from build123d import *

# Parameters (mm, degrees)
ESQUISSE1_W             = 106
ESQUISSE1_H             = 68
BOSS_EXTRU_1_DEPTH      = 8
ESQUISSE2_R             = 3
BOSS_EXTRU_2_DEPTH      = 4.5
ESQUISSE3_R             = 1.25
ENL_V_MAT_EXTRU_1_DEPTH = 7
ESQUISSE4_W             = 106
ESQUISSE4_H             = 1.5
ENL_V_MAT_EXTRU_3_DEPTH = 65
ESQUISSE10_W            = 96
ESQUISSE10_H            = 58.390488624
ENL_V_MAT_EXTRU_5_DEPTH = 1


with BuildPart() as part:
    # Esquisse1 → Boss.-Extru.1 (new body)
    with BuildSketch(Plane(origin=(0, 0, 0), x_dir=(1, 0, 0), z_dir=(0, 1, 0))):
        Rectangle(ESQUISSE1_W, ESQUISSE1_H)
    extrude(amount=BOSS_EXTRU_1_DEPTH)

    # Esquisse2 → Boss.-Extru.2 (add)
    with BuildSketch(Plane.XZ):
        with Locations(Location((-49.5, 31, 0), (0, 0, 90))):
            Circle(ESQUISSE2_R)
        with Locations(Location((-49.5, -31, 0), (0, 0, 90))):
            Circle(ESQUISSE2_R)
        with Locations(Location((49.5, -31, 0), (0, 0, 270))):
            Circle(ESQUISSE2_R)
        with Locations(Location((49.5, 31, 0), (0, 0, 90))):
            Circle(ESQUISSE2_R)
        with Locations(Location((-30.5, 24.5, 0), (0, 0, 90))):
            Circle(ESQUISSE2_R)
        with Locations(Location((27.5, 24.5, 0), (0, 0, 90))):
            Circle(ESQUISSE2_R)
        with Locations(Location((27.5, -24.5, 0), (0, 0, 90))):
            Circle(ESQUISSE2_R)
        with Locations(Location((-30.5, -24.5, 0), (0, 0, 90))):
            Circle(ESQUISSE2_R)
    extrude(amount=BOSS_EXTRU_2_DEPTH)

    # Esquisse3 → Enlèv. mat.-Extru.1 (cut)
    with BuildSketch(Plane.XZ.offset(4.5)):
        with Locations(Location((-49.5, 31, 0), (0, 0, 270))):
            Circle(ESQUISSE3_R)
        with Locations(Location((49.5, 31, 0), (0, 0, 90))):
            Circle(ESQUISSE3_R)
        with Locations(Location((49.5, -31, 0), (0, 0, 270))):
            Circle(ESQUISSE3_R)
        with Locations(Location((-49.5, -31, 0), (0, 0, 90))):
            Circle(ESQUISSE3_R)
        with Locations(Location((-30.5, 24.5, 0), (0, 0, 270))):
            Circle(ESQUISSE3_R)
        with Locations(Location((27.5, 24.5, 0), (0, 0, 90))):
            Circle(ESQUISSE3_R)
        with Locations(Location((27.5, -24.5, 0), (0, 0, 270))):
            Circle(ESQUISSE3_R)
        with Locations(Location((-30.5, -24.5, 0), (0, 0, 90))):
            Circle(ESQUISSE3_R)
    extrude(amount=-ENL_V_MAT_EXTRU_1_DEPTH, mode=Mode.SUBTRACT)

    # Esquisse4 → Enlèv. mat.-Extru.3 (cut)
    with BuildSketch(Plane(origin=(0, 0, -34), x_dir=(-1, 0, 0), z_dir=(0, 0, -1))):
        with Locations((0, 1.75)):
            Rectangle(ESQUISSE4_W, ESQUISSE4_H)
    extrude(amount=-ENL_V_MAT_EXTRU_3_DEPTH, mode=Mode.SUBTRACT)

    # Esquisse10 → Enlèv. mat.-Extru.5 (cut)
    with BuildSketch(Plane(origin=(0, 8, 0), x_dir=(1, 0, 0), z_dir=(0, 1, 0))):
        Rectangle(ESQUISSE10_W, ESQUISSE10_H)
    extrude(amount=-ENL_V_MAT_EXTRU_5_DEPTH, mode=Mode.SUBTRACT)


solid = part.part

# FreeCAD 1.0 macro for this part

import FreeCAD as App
import Part
import Sketcher

doc = App.newDocument("Part")
body = doc.addObject("PartDesign::Body", "Body")

# Sketch on XZ plane
sketch1 = doc.addObject("Sketcher::SketchObject", "Sketch")
body.addObject(sketch1)
sketch1.AttachmentSupport = (doc.XZ_Plane, [""])
sketch1.MapMode = "FlatFace"
sketch1.addGeometry([
    Part.LineSegment(App.Vector(-53, -34, 0), App.Vector(-53, 34, 0)),
    Part.LineSegment(App.Vector(-53, 34, 0), App.Vector(53, 34, 0)),
    Part.LineSegment(App.Vector(53, 34, 0), App.Vector(53, -34, 0)),
    Part.LineSegment(App.Vector(53, -34, 0), App.Vector(-53, -34, 0)),
], False)
sketch1.addConstraint([
    Sketcher.Constraint("Coincident", 0, 2, 1, 1),
    Sketcher.Constraint("Coincident", 1, 2, 2, 1),
    Sketcher.Constraint("Coincident", 2, 2, 3, 1),
    Sketcher.Constraint("Coincident", 3, 2, 0, 1),
    Sketcher.Constraint("Vertical", 0),
    Sketcher.Constraint("Horizontal", 1),
    Sketcher.Constraint("Vertical", 2),
    Sketcher.Constraint("Horizontal", 3),
    Sketcher.Constraint("Symmetric", 0, 2, 2, 2, -1, 1),
    Sketcher.Constraint("DistanceX", 1, 1, 1, 2, 106.0),
    Sketcher.Constraint("DistanceY", 0, 1, 0, 2, 68.0),
])
pad1 = doc.addObject("PartDesign::Pad", "Pad")
body.addObject(pad1)
pad1.Profile = sketch1
pad1.Length = 8
pad1.Reversed = True

# Sketch on XZ plane
sketch2 = doc.addObject("Sketcher::SketchObject", "Sketch001")
body.addObject(sketch2)
sketch2.AttachmentSupport = (doc.XZ_Plane, [""])
sketch2.MapMode = "FlatFace"
sketch2.addGeometry([
    Part.Circle(App.Vector(-49.5, 31, 0), App.Vector(0, 0, 1), 3),  # 0
    Part.Circle(App.Vector(-49.5, -31, 0), App.Vector(0, 0, 1), 3),  # 1
    Part.Circle(App.Vector(49.5, -31, 0), App.Vector(0, 0, 1), 3),  # 2
    Part.Circle(App.Vector(49.5, 31, 0), App.Vector(0, 0, 1), 3),  # 3
    Part.Circle(App.Vector(-30.5, 24.5, 0), App.Vector(0, 0, 1), 3),  # 4
    Part.Circle(App.Vector(27.5, 24.5, 0), App.Vector(0, 0, 1), 3),  # 5
    Part.Circle(App.Vector(27.5, -24.5, 0), App.Vector(0, 0, 1), 3),  # 6
    Part.Circle(App.Vector(-30.5, -24.5, 0), App.Vector(0, 0, 1), 3),  # 7
], False)
sketch2.addConstraint([
    Sketcher.Constraint("Equal", 0, 1),
    Sketcher.Constraint("Equal", 1, 2),
    Sketcher.Constraint("Equal", 2, 3),
    Sketcher.Constraint("Equal", 3, 4),
    Sketcher.Constraint("Equal", 4, 5),
    Sketcher.Constraint("Equal", 5, 6),
    Sketcher.Constraint("Equal", 6, 7),
    Sketcher.Constraint("Symmetric", 0, 3, 2, 3, -1, 1),
    Sketcher.Constraint("Symmetric", 1, 3, 3, 3, -1, 1),
    Sketcher.Constraint("Symmetric", 1, 3, 2, 3, -2),
    Sketcher.Constraint("Symmetric", 5, 3, 6, 3, -1),
    Sketcher.Constraint("Symmetric", 4, 3, 7, 3, -1),
    Sketcher.Constraint("Horizontal", 4, 3, 5, 3),
    Sketcher.Constraint("Diameter", 0, 6.0),
    Sketcher.Constraint("DistanceY", -1, 1, 0, 3, 31.0),
    Sketcher.Constraint("DistanceX", 1, 3, 2, 3, 99.0),
    Sketcher.Constraint("DistanceX", 0, 3, 4, 3, 19.0),
    Sketcher.Constraint("DistanceX", 5, 3, 3, 3, 22.0),
    Sketcher.Constraint("DistanceY", 6, 3, 5, 3, 49.0),
])
pad2 = doc.addObject("PartDesign::Pad", "Pad001")
body.addObject(pad2)
pad2.Profile = sketch2
pad2.Length = 4.5

# Sketch on XZ plane
sketch3 = doc.addObject("Sketcher::SketchObject", "Sketch002")
body.addObject(sketch3)
sketch3.AttachmentSupport = (doc.XZ_Plane, [""])
sketch3.MapMode = "FlatFace"
sketch3.AttachmentOffset = App.Placement(App.Vector(0, 0, 4.5), App.Rotation())
sketch3.addGeometry([
    Part.Circle(App.Vector(-49.5, 31, 0), App.Vector(0, 0, 1), 1.25),  # 0
    Part.Circle(App.Vector(49.5, 31, 0), App.Vector(0, 0, 1), 1.25),  # 1
    Part.Circle(App.Vector(49.5, -31, 0), App.Vector(0, 0, 1), 1.25),  # 2
    Part.Circle(App.Vector(-49.5, -31, 0), App.Vector(0, 0, 1), 1.25),  # 3
    Part.Circle(App.Vector(-30.5, 24.5, 0), App.Vector(0, 0, 1), 1.25),  # 4
    Part.Circle(App.Vector(27.5, 24.5, 0), App.Vector(0, 0, 1), 1.25),  # 5
    Part.Circle(App.Vector(27.5, -24.5, 0), App.Vector(0, 0, 1), 1.25),  # 6
    Part.Circle(App.Vector(-30.5, -24.5, 0), App.Vector(0, 0, 1), 1.25),  # 7
], False)
sketch3.addConstraint([
    Sketcher.Constraint("Equal", 0, 1),
    Sketcher.Constraint("Equal", 1, 2),
    Sketcher.Constraint("Equal", 2, 3),
    Sketcher.Constraint("Equal", 3, 4),
    Sketcher.Constraint("Equal", 4, 5),
    Sketcher.Constraint("Equal", 5, 6),
    Sketcher.Constraint("Equal", 6, 7),
    Sketcher.Constraint("Symmetric", 0, 3, 2, 3, -1, 1),
    Sketcher.Constraint("Symmetric", 1, 3, 3, 3, -1, 1),
    Sketcher.Constraint("Symmetric", 0, 3, 1, 3, -2),
    Sketcher.Constraint("Symmetric", 5, 3, 6, 3, -1),
    Sketcher.Constraint("Symmetric", 4, 3, 7, 3, -1),
    Sketcher.Constraint("Horizontal", 4, 3, 5, 3),
    Sketcher.Constraint("Diameter", 0, 2.5),
    Sketcher.Constraint("DistanceY", -1, 1, 0, 3, 31.0),
    Sketcher.Constraint("DistanceX", 0, 3, 1, 3, 99.0),
    Sketcher.Constraint("DistanceX", 0, 3, 4, 3, 19.0),
    Sketcher.Constraint("DistanceX", 5, 3, 1, 3, 22.0),
    Sketcher.Constraint("DistanceY", 6, 3, 5, 3, 49.0),
])
pocket1 = doc.addObject("PartDesign::Pocket", "Pocket")
body.addObject(pocket1)
pocket1.Profile = sketch3
pocket1.Length = 7

# Sketch on XY plane
sketch4 = doc.addObject("Sketcher::SketchObject", "Sketch003")
body.addObject(sketch4)
sketch4.AttachmentSupport = (doc.XY_Plane, [""])
sketch4.MapMode = "FlatFace"
sketch4.AttachmentOffset = App.Placement(App.Vector(0, 0, -34), App.Rotation())
sketch4.addGeometry([
    Part.LineSegment(App.Vector(53, 2.5, 0), App.Vector(53, 1, 0)),
    Part.LineSegment(App.Vector(53, 1, 0), App.Vector(-53, 1, 0)),
    Part.LineSegment(App.Vector(-53, 1, 0), App.Vector(-53, 2.5, 0)),
    Part.LineSegment(App.Vector(-53, 2.5, 0), App.Vector(53, 2.5, 0)),
], False)
sketch4.addConstraint([
    Sketcher.Constraint("Coincident", 0, 2, 1, 1),
    Sketcher.Constraint("Coincident", 1, 2, 2, 1),
    Sketcher.Constraint("Coincident", 2, 2, 3, 1),
    Sketcher.Constraint("Coincident", 3, 2, 0, 1),
    Sketcher.Constraint("Vertical", 0),
    Sketcher.Constraint("Horizontal", 1),
    Sketcher.Constraint("Vertical", 2),
    Sketcher.Constraint("Horizontal", 3),
    Sketcher.Constraint("DistanceX", 1, 2, 1, 1, 106.0),
    Sketcher.Constraint("DistanceY", 0, 2, 0, 1, 1.5),
    Sketcher.Constraint("DistanceX", -1, 1, 0, 2, 53.0),
    Sketcher.Constraint("DistanceY", -1, 1, 0, 2, 1.0),
])
pocket2 = doc.addObject("PartDesign::Pocket", "Pocket001")
body.addObject(pocket2)
pocket2.Profile = sketch4
pocket2.Length = 65
pocket2.Reversed = True

# Sketch on XZ plane
sketch5 = doc.addObject("Sketcher::SketchObject", "Sketch004")
body.addObject(sketch5)
sketch5.AttachmentSupport = (doc.XZ_Plane, [""])
sketch5.MapMode = "FlatFace"
sketch5.AttachmentOffset = App.Placement(App.Vector(0, 0, -8), App.Rotation())
sketch5.addGeometry([
    Part.LineSegment(App.Vector(-48, -29.195244, 0), App.Vector(-48, 29.195244, 0)),
    Part.LineSegment(App.Vector(-48, 29.195244, 0), App.Vector(48, 29.195244, 0)),
    Part.LineSegment(App.Vector(48, 29.195244, 0), App.Vector(48, -29.195244, 0)),
    Part.LineSegment(App.Vector(48, -29.195244, 0), App.Vector(-48, -29.195244, 0)),
], False)
sketch5.addConstraint([
    Sketcher.Constraint("Coincident", 0, 2, 1, 1),
    Sketcher.Constraint("Coincident", 1, 2, 2, 1),
    Sketcher.Constraint("Coincident", 2, 2, 3, 1),
    Sketcher.Constraint("Coincident", 3, 2, 0, 1),
    Sketcher.Constraint("Vertical", 0),
    Sketcher.Constraint("Horizontal", 1),
    Sketcher.Constraint("Vertical", 2),
    Sketcher.Constraint("Horizontal", 3),
    Sketcher.Constraint("Symmetric", 0, 2, 2, 2, -1, 1),
    Sketcher.Constraint("DistanceX", 1, 1, 1, 2, 96.0),
    Sketcher.Constraint("DistanceY", 0, 1, 0, 2, 58.390489),
])
pocket3 = doc.addObject("PartDesign::Pocket", "Pocket002")
body.addObject(pocket3)
pocket3.Profile = sketch5
pocket3.Length = 1
pocket3.Reversed = True

doc.recompute()
